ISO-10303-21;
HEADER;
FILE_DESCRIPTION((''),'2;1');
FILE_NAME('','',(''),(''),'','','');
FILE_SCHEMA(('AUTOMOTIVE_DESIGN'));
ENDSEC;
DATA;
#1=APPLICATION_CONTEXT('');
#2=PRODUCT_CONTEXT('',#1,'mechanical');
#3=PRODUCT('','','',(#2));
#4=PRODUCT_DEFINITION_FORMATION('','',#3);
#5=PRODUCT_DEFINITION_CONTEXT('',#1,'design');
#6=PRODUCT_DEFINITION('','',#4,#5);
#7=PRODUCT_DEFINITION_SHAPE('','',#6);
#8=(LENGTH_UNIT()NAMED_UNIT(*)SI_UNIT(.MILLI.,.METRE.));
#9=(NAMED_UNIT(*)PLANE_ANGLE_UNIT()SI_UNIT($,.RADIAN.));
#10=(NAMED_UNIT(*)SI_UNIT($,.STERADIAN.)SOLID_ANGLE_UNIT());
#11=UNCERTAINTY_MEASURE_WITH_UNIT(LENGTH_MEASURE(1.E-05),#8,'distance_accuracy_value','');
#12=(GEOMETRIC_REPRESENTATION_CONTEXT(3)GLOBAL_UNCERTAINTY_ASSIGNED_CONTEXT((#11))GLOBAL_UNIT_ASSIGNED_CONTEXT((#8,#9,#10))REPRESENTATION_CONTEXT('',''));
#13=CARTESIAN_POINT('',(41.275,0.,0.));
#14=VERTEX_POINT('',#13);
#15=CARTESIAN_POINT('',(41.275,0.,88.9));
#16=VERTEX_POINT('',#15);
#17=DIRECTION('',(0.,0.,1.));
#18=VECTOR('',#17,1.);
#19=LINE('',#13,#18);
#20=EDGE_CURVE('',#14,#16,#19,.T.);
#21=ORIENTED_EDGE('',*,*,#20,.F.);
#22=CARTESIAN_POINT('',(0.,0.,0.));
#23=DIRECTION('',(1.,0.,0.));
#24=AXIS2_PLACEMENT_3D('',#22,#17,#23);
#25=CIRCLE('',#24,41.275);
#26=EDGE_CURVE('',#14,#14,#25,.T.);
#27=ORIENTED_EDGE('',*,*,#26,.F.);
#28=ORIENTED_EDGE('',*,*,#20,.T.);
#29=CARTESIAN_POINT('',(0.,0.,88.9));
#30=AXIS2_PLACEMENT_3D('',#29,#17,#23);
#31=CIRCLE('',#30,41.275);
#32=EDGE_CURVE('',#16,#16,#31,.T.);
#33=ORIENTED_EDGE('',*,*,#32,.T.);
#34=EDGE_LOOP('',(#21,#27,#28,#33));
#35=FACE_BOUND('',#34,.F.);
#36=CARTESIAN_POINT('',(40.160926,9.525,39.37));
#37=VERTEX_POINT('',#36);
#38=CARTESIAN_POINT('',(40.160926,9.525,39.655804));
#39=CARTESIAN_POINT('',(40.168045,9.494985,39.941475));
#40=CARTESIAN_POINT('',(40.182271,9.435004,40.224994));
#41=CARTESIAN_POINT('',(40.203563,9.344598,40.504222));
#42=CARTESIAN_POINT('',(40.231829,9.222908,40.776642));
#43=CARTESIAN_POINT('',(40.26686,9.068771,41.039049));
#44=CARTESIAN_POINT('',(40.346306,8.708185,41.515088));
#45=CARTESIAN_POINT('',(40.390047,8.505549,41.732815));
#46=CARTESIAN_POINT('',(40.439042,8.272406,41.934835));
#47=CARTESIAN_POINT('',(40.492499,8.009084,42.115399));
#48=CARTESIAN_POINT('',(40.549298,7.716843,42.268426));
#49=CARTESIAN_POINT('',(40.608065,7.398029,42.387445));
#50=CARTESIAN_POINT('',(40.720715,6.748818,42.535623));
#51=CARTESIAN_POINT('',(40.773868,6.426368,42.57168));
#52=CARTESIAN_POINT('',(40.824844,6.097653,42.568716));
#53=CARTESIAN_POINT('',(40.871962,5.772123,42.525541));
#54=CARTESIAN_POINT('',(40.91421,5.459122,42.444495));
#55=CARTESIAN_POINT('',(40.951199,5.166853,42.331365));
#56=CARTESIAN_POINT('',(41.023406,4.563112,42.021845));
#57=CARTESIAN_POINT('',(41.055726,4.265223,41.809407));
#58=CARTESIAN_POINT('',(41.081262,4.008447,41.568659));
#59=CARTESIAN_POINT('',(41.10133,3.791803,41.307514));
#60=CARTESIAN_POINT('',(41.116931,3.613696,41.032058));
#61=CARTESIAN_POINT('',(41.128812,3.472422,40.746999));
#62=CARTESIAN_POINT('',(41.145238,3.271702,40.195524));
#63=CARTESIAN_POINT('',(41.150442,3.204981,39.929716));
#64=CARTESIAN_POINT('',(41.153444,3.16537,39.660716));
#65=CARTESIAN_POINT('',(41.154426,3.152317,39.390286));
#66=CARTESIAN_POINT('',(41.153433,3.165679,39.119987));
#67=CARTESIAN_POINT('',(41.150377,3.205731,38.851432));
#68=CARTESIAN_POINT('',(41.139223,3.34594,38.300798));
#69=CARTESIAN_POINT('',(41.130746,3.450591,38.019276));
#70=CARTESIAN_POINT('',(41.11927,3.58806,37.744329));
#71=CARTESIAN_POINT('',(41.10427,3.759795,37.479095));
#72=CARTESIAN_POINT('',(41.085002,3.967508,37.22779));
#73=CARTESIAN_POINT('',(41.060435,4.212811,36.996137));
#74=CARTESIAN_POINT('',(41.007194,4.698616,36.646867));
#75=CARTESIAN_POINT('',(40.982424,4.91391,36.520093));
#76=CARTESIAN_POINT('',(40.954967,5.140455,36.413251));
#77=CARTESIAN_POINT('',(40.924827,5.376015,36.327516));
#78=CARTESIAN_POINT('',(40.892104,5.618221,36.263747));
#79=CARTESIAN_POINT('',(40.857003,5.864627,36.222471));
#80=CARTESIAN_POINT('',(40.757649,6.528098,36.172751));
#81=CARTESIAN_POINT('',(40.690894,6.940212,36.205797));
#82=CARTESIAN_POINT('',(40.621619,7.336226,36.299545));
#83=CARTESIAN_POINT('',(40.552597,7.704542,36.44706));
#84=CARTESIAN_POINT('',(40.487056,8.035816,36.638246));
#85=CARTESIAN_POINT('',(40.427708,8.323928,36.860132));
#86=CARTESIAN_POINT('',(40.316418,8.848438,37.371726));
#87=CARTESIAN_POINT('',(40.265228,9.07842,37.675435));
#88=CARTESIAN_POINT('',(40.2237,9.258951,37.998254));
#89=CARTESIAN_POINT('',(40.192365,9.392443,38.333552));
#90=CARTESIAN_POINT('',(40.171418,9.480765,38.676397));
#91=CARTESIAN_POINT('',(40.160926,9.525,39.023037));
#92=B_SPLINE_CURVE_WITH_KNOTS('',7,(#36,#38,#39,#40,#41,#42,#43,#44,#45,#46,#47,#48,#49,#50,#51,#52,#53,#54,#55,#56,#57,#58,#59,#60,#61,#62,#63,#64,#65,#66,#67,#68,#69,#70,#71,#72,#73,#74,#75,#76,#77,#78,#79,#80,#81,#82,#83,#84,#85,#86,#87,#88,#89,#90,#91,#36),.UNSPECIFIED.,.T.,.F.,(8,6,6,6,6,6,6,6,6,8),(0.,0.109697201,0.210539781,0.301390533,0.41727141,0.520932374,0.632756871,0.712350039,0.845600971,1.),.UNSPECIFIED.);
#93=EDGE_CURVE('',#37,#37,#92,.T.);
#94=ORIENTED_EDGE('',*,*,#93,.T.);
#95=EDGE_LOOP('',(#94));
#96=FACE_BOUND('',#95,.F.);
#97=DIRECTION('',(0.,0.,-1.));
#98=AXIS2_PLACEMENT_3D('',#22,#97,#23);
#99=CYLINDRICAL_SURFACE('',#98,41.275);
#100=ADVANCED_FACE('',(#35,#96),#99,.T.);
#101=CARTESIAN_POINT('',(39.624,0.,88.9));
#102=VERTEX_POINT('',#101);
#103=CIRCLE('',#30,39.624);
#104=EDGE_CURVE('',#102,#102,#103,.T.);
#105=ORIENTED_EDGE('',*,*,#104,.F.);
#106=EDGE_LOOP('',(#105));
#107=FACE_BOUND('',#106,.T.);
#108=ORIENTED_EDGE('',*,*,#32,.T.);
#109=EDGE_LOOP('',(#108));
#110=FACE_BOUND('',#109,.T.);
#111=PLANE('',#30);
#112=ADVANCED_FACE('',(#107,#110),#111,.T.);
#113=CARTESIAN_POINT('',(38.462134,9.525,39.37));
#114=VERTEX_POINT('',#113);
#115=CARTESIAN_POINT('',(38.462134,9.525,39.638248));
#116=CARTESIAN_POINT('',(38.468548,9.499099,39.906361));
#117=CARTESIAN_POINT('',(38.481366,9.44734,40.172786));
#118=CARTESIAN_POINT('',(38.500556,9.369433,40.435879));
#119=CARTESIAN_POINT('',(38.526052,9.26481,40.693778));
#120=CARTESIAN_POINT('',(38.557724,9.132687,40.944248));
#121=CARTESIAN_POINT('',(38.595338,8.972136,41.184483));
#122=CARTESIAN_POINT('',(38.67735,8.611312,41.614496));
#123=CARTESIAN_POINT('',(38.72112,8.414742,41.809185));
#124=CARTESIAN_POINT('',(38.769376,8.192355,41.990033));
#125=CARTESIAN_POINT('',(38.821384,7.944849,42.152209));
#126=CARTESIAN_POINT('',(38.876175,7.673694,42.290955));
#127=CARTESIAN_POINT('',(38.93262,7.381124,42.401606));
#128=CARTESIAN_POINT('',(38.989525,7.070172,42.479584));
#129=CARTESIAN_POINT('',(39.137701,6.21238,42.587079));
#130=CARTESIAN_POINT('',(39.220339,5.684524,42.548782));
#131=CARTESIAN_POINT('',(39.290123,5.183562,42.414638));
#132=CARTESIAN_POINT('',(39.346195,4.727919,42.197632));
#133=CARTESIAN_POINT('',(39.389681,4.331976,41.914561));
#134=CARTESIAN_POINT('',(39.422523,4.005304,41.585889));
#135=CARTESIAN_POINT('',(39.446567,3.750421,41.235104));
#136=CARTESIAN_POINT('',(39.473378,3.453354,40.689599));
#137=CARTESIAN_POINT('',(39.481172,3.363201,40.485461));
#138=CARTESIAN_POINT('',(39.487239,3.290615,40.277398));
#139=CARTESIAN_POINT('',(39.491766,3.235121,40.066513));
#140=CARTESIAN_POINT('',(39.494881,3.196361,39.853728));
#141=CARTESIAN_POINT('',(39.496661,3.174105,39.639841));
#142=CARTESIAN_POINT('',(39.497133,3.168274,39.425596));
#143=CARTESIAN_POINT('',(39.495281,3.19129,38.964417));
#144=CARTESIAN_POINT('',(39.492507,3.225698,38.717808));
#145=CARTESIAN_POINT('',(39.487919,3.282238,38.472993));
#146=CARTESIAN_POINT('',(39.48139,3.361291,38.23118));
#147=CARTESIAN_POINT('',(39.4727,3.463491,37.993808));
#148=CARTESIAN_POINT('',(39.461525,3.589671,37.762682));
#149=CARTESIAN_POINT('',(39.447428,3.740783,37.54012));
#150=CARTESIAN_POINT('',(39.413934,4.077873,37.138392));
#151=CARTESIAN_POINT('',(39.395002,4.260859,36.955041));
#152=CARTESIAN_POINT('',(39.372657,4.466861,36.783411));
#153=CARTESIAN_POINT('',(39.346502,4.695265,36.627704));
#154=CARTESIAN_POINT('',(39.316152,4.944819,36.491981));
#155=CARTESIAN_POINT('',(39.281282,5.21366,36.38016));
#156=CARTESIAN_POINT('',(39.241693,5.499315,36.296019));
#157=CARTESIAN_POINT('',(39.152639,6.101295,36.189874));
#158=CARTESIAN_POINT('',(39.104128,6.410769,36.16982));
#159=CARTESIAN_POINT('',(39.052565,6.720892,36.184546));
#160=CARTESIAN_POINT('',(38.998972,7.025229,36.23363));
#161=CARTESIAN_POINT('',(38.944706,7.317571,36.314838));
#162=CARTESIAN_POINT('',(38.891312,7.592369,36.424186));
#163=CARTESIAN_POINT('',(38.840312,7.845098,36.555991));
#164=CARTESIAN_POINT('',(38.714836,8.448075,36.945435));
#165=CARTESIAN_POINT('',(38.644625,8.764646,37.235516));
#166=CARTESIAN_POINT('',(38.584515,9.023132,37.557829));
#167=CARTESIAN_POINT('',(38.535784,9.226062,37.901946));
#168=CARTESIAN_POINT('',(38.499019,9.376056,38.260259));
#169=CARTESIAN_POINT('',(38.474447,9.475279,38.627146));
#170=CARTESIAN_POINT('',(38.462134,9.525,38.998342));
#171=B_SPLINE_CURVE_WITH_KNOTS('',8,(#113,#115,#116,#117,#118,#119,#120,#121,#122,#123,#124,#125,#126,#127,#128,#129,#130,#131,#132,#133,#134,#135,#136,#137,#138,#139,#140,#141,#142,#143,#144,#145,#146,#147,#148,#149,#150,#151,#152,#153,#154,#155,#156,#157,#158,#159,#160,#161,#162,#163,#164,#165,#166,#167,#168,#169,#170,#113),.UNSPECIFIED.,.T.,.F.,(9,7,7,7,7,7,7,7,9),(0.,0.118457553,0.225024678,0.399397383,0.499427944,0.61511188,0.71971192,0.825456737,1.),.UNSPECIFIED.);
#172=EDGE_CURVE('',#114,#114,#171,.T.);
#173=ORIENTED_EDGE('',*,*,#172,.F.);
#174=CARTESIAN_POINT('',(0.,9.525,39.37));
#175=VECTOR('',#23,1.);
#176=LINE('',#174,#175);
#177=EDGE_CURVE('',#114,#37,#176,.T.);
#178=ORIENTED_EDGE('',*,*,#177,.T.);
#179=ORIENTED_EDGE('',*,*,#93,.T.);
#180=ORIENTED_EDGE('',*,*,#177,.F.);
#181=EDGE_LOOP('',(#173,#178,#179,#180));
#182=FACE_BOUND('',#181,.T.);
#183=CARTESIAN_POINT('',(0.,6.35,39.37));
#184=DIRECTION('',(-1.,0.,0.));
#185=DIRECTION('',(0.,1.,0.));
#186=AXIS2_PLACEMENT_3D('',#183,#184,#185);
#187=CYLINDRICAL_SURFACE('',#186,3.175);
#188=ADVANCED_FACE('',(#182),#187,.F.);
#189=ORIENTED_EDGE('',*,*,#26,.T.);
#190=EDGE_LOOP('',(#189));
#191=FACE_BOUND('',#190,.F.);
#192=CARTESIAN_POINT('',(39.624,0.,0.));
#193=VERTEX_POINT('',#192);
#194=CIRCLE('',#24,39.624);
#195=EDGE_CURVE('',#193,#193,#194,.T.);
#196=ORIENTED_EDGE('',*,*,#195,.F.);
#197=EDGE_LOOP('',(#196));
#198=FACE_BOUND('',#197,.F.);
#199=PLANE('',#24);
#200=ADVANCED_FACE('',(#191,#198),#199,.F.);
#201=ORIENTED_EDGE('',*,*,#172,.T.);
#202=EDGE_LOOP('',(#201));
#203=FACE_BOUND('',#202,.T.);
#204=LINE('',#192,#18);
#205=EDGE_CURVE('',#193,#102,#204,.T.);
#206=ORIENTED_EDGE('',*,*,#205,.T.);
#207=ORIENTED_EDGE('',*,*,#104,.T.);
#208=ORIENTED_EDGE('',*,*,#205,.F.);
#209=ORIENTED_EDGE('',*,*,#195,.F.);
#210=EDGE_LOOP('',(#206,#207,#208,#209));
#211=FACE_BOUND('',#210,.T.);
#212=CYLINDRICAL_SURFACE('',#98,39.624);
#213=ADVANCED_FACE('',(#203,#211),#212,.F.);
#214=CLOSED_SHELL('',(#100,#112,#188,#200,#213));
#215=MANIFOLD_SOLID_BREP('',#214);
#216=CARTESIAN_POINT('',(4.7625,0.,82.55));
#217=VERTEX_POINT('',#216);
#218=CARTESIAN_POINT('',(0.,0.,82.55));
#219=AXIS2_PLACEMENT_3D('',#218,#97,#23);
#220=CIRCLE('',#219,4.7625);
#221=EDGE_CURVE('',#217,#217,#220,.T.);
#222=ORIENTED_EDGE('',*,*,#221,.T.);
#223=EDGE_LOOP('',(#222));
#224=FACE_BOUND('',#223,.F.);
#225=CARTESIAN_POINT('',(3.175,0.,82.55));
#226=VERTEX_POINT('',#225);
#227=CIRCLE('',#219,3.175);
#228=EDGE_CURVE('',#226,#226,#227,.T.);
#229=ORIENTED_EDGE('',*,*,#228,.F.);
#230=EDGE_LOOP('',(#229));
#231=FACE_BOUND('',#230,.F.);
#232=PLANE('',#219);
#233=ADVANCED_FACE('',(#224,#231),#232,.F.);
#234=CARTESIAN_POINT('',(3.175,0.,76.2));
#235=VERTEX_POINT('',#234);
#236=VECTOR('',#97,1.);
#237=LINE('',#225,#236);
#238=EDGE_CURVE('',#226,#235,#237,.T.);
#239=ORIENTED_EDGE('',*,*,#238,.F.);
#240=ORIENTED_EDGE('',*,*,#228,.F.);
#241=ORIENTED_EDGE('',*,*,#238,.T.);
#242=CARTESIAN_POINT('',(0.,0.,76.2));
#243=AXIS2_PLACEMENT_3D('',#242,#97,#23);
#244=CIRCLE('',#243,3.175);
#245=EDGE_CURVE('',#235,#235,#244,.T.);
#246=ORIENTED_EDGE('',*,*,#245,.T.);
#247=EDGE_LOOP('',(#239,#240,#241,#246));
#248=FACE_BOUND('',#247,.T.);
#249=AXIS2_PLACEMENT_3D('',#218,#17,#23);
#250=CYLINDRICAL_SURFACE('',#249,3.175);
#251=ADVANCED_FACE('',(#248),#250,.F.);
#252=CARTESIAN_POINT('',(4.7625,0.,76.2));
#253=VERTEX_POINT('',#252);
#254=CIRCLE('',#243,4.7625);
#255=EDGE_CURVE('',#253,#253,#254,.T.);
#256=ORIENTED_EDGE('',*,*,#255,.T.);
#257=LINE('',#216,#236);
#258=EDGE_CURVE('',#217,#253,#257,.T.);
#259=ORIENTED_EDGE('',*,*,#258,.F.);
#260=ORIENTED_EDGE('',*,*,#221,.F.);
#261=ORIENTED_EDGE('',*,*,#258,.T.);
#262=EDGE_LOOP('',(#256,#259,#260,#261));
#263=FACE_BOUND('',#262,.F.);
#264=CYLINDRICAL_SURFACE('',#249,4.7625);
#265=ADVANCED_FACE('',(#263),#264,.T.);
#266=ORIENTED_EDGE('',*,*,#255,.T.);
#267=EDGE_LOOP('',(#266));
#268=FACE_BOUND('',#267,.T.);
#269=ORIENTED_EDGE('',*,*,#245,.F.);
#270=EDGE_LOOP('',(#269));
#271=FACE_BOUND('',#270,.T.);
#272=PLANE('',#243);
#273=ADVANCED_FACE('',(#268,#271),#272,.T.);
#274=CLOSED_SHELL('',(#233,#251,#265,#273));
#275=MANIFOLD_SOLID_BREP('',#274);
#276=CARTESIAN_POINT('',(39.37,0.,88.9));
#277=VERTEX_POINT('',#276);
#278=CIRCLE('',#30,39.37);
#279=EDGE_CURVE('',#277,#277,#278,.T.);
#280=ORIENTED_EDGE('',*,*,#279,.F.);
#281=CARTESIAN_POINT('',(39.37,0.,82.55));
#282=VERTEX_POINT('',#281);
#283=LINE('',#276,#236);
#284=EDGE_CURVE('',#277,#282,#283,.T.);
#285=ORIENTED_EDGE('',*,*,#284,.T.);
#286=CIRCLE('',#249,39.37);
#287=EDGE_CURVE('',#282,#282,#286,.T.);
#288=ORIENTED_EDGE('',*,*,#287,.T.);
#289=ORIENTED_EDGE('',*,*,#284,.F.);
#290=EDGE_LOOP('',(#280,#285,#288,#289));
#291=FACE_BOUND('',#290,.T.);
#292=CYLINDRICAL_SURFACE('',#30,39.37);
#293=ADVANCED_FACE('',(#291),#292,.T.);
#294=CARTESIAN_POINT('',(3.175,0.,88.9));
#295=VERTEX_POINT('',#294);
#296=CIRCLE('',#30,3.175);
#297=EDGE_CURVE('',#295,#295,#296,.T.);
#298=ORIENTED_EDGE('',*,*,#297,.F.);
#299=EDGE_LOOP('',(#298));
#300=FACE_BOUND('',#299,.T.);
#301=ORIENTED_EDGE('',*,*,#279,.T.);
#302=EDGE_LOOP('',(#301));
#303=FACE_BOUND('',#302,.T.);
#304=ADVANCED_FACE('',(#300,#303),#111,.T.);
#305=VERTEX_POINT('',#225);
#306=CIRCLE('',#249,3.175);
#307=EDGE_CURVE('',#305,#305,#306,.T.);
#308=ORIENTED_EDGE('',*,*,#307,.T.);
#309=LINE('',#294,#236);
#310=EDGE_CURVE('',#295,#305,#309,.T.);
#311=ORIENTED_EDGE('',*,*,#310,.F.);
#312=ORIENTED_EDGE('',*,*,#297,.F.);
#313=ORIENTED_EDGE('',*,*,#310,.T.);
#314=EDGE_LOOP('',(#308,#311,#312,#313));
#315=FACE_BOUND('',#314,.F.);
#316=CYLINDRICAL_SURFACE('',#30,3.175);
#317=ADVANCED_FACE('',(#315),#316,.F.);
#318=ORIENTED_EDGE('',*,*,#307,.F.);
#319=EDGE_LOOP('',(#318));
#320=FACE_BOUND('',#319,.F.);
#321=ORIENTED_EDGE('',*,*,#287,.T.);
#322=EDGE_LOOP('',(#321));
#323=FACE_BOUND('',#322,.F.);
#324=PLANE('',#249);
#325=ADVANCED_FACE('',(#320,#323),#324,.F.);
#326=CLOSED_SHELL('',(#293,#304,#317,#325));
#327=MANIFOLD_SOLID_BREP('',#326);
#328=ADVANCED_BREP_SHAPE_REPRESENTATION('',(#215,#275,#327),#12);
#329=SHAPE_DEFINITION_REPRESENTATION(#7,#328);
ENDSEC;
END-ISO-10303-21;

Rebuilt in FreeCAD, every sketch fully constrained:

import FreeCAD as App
import Part
import Sketcher

V = App.Vector
Q = App.Units.Quantity

doc = App.newDocument("Part")
body = doc.addObject("PartDesign::Body", "Body")

# Sketch on XY plane
sketch1 = body.newObject("Sketcher::SketchObject", "Sketch")
sketch1.AttachmentSupport = (doc.getObject("XY_Plane"), [""])
sketch1.MapMode = "FlatFace"
sketch1.addGeometry(Part.Circle(V(0, 0, 0), V(0, 0, 1), 41.275), False)
sketch1.addGeometry(Part.Circle(V(0, 0, 0), V(0, 0, 1), 39.624), False)
sketch1.addConstraint(Sketcher.Constraint("Coincident", 0, 3, -1, 1))
sketch1.addConstraint(Sketcher.Constraint("Coincident", 1, 3, -1, 1))
sketch1.addConstraint(Sketcher.Constraint("Diameter", 0, Q("3.25 in")))
sketch1.addConstraint(Sketcher.Constraint("Diameter", 1, Q("3.12 in")))
pad1 = body.newObject("PartDesign::Pad", "Pad")
pad1.Profile = sketch1
pad1.Length = Q("3.5 in")

# Sketch on YZ plane
sketch2 = body.newObject("Sketcher::SketchObject", "Sketch001")
sketch2.AttachmentSupport = (doc.getObject("YZ_Plane"), [""])
sketch2.MapMode = "FlatFace"
sketch2.addGeometry(Part.Circle(V(6.35, 39.37, 0), V(0, 0, 1), 3.175), False)
sketch2.addConstraint(Sketcher.Constraint("Diameter", 0, Q("0.25 in")))
sketch2.addConstraint(Sketcher.Constraint("DistanceX", -1, 1, 0, 3, Q("0.25 in")))
sketch2.addConstraint(Sketcher.Constraint("DistanceY", -1, 1, 0, 3, Q("1.55 in")))
pocket1 = body.newObject("PartDesign::Pocket", "Pocket")
pocket1.Profile = sketch2
pocket1.Length = Q("5 in")
pocket1.Reversed = True
body2 = doc.addObject("PartDesign::Body", "Body001")

# Sketch on XY plane
sketch3 = body2.newObject("Sketcher::SketchObject", "Sketch002")
sketch3.AttachmentSupport = (doc.getObject("XY_Plane001"), [""])
sketch3.MapMode = "FlatFace"
sketch3.AttachmentOffset = App.Placement(V(0, 0, 3.5 * 25.4), App.Rotation())
sketch3.addGeometry(Part.Circle(V(0, 0, 0), V(0, 0, 1), 39.37), False)
sketch3.addGeometry(Part.Circle(V(0, 0, 0), V(0, 0, 1), 3.175), False)
sketch3.addConstraint(Sketcher.Constraint("Coincident", 0, 3, -1, 1))
sketch3.addConstraint(Sketcher.Constraint("Coincident", 1, 3, -1, 1))
sketch3.addConstraint(Sketcher.Constraint("Diameter", 0, Q("3.1 in")))
sketch3.addConstraint(Sketcher.Constraint("Diameter", 1, Q("0.25 in")))
pad2 = body2.newObject("PartDesign::Pad", "Pad001")
pad2.Profile = sketch3
pad2.Length = Q("0.25 in")
pad2.Reversed = True
body3 = doc.addObject("PartDesign::Body", "Body002")

# Sketch on XY plane
sketch4 = body3.newObject("Sketcher::SketchObject", "Sketch003")
sketch4.AttachmentSupport = (doc.getObject("XY_Plane002"), [""])
sketch4.MapMode = "FlatFace"
sketch4.AttachmentOffset = App.Placement(V(0, 0, 3.25 * 25.4), App.Rotation())
sketch4.addGeometry(Part.Circle(V(0, 0, 0), V(0, 0, 1), 4.7625), False)
sketch4.addGeometry(Part.Circle(V(0, 0, 0), V(0, 0, 1), 3.175), False)
sketch4.addConstraint(Sketcher.Constraint("Coincident", 0, 3, -1, 1))
sketch4.addConstraint(Sketcher.Constraint("Coincident", 1, 3, -1, 1))
sketch4.addConstraint(Sketcher.Constraint("Diameter", 1, Q("0.25 in")))
sketch4.addConstraint(Sketcher.Constraint("Diameter", 0, Q("0.375 in")))
pad3 = body3.newObject("PartDesign::Pad", "Pad002")
pad3.Profile = sketch4
pad3.Length = Q("0.25 in")
pad3.Reversed = True

doc.recompute()
